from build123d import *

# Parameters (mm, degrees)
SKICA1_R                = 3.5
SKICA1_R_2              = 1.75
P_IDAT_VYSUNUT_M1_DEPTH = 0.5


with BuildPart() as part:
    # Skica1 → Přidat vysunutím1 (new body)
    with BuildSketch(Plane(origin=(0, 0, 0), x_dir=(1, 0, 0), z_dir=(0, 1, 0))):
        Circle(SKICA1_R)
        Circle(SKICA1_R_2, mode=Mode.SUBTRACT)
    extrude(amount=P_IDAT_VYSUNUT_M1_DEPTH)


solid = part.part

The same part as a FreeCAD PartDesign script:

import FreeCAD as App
import Part
import Sketcher
Q = App.Units.Quantity

doc = App.newDocument("Part")
body = doc.addObject("PartDesign::Body", "Body")

# Sketch on XZ plane
sketch1 = doc.addObject("Sketcher::SketchObject", "Sketch")
body.addObject(sketch1)
sketch1.AttachmentSupport = (doc.XZ_Plane, [""])
sketch1.MapMode = "FlatFace"
sketch1.addGeometry([
    Part.Circle(App.Vector(0, 0, 0), App.Vector(0, 0, 1), 3.5),
    Part.Circle(App.Vector(0, 0, 0), App.Vector(0, 0, 1), 1.8),
], False)
sketch1.addConstraint([
    Sketcher.Constraint("Coincident", 0, 3, -1, 1),
    Sketcher.Constraint("Coincident", 1, 3, -1, 1),
    Sketcher.Constraint("Diameter", 0, Q("7 mm")),
    Sketcher.Constraint("Diameter", 1, Q("3.5 mm")),
])
pad1 = doc.addObject("PartDesign::Pad", "Pad")
body.addObject(pad1)
pad1.Profile = sketch1
pad1.Length = 0.5
pad1.Reversed = True

doc.recompute()
